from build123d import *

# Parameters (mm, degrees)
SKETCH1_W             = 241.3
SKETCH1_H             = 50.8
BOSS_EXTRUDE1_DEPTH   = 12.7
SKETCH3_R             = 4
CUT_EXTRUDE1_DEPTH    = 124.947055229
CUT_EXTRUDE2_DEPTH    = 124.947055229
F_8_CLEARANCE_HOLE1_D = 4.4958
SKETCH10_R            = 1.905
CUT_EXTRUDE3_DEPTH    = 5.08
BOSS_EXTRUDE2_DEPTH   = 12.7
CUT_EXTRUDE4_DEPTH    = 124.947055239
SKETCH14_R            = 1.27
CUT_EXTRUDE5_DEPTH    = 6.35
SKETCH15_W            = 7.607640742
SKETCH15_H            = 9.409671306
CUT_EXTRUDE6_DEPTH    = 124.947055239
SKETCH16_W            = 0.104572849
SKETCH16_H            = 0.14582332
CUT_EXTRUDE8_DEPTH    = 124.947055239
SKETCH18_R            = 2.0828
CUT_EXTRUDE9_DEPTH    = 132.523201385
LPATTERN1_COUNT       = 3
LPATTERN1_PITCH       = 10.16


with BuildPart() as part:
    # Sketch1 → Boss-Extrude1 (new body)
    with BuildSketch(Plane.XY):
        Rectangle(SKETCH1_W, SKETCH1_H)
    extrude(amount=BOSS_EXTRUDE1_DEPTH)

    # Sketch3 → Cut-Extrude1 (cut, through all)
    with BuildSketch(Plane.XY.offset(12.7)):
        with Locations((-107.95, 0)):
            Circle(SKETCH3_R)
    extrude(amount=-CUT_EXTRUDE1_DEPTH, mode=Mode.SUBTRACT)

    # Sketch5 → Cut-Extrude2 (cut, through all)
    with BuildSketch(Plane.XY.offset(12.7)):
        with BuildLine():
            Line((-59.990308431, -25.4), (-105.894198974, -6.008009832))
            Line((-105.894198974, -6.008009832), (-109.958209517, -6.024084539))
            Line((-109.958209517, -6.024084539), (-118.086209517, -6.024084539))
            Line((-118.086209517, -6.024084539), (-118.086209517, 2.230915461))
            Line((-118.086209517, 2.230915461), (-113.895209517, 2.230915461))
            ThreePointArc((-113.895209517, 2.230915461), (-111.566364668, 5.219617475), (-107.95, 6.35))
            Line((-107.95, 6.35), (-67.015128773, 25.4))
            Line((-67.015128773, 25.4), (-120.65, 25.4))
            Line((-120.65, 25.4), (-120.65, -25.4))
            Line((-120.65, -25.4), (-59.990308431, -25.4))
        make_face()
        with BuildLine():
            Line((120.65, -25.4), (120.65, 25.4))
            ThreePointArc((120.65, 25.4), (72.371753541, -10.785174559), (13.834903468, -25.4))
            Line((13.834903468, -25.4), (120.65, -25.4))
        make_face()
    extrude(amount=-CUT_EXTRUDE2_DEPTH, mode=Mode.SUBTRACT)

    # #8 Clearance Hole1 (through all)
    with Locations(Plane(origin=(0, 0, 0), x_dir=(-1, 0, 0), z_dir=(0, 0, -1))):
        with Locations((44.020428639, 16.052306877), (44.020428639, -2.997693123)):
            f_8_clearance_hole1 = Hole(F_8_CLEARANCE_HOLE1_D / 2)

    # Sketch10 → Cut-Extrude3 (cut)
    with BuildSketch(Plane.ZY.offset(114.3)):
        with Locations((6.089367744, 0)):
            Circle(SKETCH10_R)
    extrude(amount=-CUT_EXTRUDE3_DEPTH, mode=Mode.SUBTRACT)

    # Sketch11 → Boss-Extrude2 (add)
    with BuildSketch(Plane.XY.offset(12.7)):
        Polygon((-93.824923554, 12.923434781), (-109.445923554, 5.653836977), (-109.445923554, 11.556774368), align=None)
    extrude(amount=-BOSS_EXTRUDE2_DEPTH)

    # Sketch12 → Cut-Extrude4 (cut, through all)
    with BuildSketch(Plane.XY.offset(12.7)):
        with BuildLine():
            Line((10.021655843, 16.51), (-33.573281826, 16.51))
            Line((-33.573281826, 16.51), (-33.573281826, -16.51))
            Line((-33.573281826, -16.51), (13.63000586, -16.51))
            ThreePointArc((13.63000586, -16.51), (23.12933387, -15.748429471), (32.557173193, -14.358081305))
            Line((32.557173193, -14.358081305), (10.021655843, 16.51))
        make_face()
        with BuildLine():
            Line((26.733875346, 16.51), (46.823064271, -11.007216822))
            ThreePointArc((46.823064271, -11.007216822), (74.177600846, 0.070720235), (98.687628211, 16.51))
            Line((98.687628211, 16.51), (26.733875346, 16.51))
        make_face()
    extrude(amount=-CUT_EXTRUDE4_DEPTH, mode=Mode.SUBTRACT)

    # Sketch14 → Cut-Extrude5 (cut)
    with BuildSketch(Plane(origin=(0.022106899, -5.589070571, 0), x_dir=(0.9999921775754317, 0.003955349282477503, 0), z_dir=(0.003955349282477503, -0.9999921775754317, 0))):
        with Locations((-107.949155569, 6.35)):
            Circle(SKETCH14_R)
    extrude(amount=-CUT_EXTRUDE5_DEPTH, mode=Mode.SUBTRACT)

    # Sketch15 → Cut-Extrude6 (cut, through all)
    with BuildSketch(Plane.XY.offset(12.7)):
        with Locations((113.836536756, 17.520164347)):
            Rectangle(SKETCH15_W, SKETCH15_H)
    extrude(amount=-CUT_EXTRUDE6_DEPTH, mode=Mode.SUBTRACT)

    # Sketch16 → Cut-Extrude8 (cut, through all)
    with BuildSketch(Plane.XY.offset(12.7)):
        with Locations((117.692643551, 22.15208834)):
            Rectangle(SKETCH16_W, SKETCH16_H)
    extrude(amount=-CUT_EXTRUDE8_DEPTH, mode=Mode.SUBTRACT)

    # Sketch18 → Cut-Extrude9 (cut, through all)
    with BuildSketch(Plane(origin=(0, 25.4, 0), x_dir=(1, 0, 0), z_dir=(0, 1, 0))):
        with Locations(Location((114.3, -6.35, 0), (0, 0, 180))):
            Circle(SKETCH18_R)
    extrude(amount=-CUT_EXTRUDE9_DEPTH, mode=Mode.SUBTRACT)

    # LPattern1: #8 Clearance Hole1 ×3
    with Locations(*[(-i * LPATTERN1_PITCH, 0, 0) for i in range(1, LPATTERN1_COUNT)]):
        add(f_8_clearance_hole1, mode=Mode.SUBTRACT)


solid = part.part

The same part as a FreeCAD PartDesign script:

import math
import FreeCAD as App
import Part
import Sketcher
Q = App.Units.Quantity


def add_polygon(sketch, points):
    """Adds a closed chain of lines whose ends are joined by coincident constraints."""
    first, n = sketch.GeometryCount, len(points)
    for a, b in zip(points, points[1:] + points[:1]):
        sketch.addGeometry(Part.LineSegment(App.Vector(*a, 0), App.Vector(*b, 0)), False)
    for i in range(n):
        sketch.addConstraint(Sketcher.Constraint("Coincident", first + i, 2, first + (i + 1) % n, 1))

doc = App.newDocument("Part")
params = doc.addObject("Spreadsheet::Sheet", "Params")
for row, (alias, value) in enumerate([
    ("sketch1_height", "2 in"),
    ("sketch1_width", "9.5 in"),
    ("pad1_length", "0.5 in"),
    ("sketch3_radius", "6 in"),
    ("sketch3_height", "2 in"),
    ("sketch3_radius2", "0.25 in"),
    ("sketch3_width", "0.32 in"),
    ("sketch3_width2", "0.165 in"),
    ("sketch4_diameter", "0.177 in"),
    ("hole_diameter", "0.177 in"),
    ("sketch5_diameter", "0.15 in"),
    ("pocket3_length", "0.2 in"),
    ("pad2_length", "0.5 in"),
    ("sketch7_radius", "5.65 in"),
    ("sketch7_height", "1.3 in"),
    ("sketch8_diameter", "0.1 in"),
    ("pocket5_length", "0.25 in"),
    ("sketch11_diameter", "0.164 in"),
    ("linearpattern_pitch", "0.4 in"),
], start=1):
    params.set(f"A{row}", alias)
    params.set(f"B{row}", "=" + value)
    params.setAlias(f"B{row}", alias)

body = doc.addObject("PartDesign::Body", "Body")

# Sketch on XY plane
sketch1 = doc.addObject("Sketcher::SketchObject", "Sketch")
body.addObject(sketch1)
sketch1.AttachmentSupport = (doc.XY_Plane, [""])
sketch1.MapMode = "FlatFace"
add_polygon(sketch1, [(-120.65, 25.4), (-120.65, -25.4), (120.65, -25.4), (120.65, 25.4)])  # lines 0-3
sketch1.addConstraint([
    Sketcher.Constraint("Vertical", 0),
    Sketcher.Constraint("Horizontal", 1),
    Sketcher.Constraint("Vertical", 2),
    Sketcher.Constraint("Horizontal", 3),
    Sketcher.Constraint("Symmetric", 0, 2, 2, 2, -1, 1),
    Sketcher.Constraint("DistanceY", 0, 2, 0, 1, Q("2 in")),
    Sketcher.Constraint("DistanceX", 1, 1, 1, 2, Q("9.5 in")),
])
sketch1.setExpression("Constraints[9]", "Params.sketch1_height")
sketch1.setExpression("Constraints[10]", "Params.sketch1_width")
pad1 = doc.addObject("PartDesign::Pad", "Pad")
body.addObject(pad1)
pad1.Profile = sketch1
pad1.setExpression("Length", "Params.pad1_length")

# Sketch on XY plane
sketch2 = doc.addObject("Sketcher::SketchObject", "Sketch001")
body.addObject(sketch2)
sketch2.AttachmentSupport = (doc.XY_Plane, [""])
sketch2.MapMode = "FlatFace"
sketch2.AttachmentOffset = App.Placement(App.Vector(0, 0, 0.5 * 25.4), App.Rotation())
sketch2.addGeometry(Part.Circle(App.Vector(-107.95, 0, 0), App.Vector(0, 0, 1), 4), False)
sketch2.addConstraint([
    Sketcher.Constraint("PointOnObject", 0, 3, -1),
    Sketcher.Constraint("Diameter", 0, Q("8 mm")),
    Sketcher.Constraint("DistanceX", 0, 3, -1, 1, Q("4.25 in")),
])
pocket1 = doc.addObject("PartDesign::Pocket", "Pocket")
body.addObject(pocket1)
pocket1.Profile = sketch2
pocket1.Type = "ThroughAll"

# Sketch on XY plane
sketch3 = doc.addObject("Sketcher::SketchObject", "Sketch002")
body.addObject(sketch3)
sketch3.AttachmentSupport = (doc.XY_Plane, [""])
sketch3.MapMode = "FlatFace"
sketch3.AttachmentOffset = App.Placement(App.Vector(0, 0, 0.5 * 25.4), App.Rotation())
sketch3.addGeometry([
    Part.LineSegment(App.Vector(-59.990308, -25.4, 0), App.Vector(-105.894199, -6.00801, 0)),  # 0
    Part.LineSegment(App.Vector(-105.894199, -6.00801, 0), App.Vector(-109.95821, -6.024085, 0)),  # 1
    Part.LineSegment(App.Vector(-109.95821, -6.024085, 0), App.Vector(-118.08621, -6.024085, 0)),  # 2
    Part.LineSegment(App.Vector(-118.08621, -6.024085, 0), App.Vector(-118.08621, 2.230915, 0)),  # 3
    Part.LineSegment(App.Vector(-118.08621, 2.230915, 0), App.Vector(-113.89521, 2.230915, 0)),  # 4
    Part.ArcOfCircle(Part.Circle(App.Vector(-107.95, 0, 0), App.Vector(0, 0, 1), 6.35), math.radians(90), math.radians(159.431604)),  # 5
    Part.LineSegment(App.Vector(-107.95, 6.35, 0), App.Vector(-67.015129, 25.4, 0)),  # 6
    Part.LineSegment(App.Vector(-67.015129, 25.4, 0), App.Vector(-120.65, 25.4, 0)),  # 7
    Part.LineSegment(App.Vector(-120.65, 25.4, 0), App.Vector(-120.65, -25.4, 0)),  # 8
    Part.LineSegment(App.Vector(-120.65, -25.4, 0), App.Vector(-59.990308, -25.4, 0)),  # 9
    Part.LineSegment(App.Vector(120.65, -25.4, 0), App.Vector(120.65, 25.4, 0)),  # 10
    Part.ArcOfCircle(Part.Circle(App.Vector(6.917452, 126.842927, 0), App.Vector(0, 0, 1), 152.4), math.radians(-87.398445), math.radians(-41.731136)),  # 11
    Part.LineSegment(App.Vector(13.834903, -25.4, 0), App.Vector(120.65, -25.4, 0)),  # 12
], False)
sketch3.addConstraint([
    Sketcher.Constraint("Coincident", 0, 2, 1, 1),
    Sketcher.Constraint("Coincident", 1, 2, 2, 1),
    Sketcher.Constraint("Coincident", 2, 2, 3, 1),
    Sketcher.Constraint("Coincident", 3, 2, 4, 1),
    Sketcher.Constraint("Coincident", 4, 2, 5, 2),
    Sketcher.Constraint("Coincident", 5, 1, 6, 1),
    Sketcher.Constraint("Coincident", 6, 2, 7, 1),
    Sketcher.Constraint("Coincident", 7, 2, 8, 1),
    Sketcher.Constraint("Coincident", 8, 2, 9, 1),
    Sketcher.Constraint("Coincident", 9, 2, 0, 1),
    Sketcher.Constraint("Coincident", 10, 2, 11, 2),
    Sketcher.Constraint("Coincident", 11, 1, 12, 1),
    Sketcher.Constraint("Coincident", 12, 2, 10, 1),
    Sketcher.Constraint("Horizontal", 2),
    Sketcher.Constraint("Vertical", 3),
    Sketcher.Constraint("Horizontal", 4),
    Sketcher.Constraint("Horizontal", 7),
    Sketcher.Constraint("Vertical", 8),
    Sketcher.Constraint("Horizontal", 9),
    Sketcher.Constraint("Vertical", 10),
    Sketcher.Constraint("Horizontal", 12),
    Sketcher.Constraint("Symmetric", 8, 2, 10, 2, -1, 1),
    Sketcher.Constraint("PointOnObject", 5, 3, -1),
    Sketcher.Constraint("Horizontal", 7, 2, 10, 2),
    Sketcher.Constraint("Horizontal", 9, 2, 11, 1),
    Sketcher.Constraint("Radius", 11, Q("6 in")),
    Sketcher.Constraint("DistanceY", 8, 2, 8, 1, Q("2 in")),
    Sketcher.Constraint("Radius", 5, Q("0.25 in")),
    Sketcher.Constraint("DistanceX", 5, 1, 10, 2, Q("9 in")),
    Sketcher.Constraint("DistanceX", 2, 2, 2, 1, Q("0.32 in")),
    Sketcher.Constraint("DistanceX", 7, 2, 5, 1, Q("0.5 in")),
    Sketcher.Constraint("DistanceX", 7, 2, 5, 3, Q("0.5 in")),
    Sketcher.Constraint("DistanceX", 4, 1, 4, 2, Q("0.165 in")),
    Sketcher.Constraint("DistanceY", 3, 1, 3, 2, Q("0.325 in")),
    Sketcher.Constraint("DistanceX", 7, 2, 7, 1, Q("53.634871 mm")),
    Sketcher.Constraint("DistanceX", 9, 1, 9, 2, Q("60.659692 mm")),
    Sketcher.Constraint("DistanceX", 0, 2, -1, 1, Q("105.894199 mm")),
    Sketcher.Constraint("DistanceX", 1, 2, 9, 2, Q("49.967901 mm")),
    Sketcher.Constraint("Distance", 0, Q("49.831882 mm")),
    Sketcher.Constraint("DistanceX", 12, 1, 12, 2, Q("106.815097 mm")),
])
sketch3.setExpression("Constraints[25]", "Params.sketch3_radius")
sketch3.setExpression("Constraints[26]", "Params.sketch3_height")
sketch3.setExpression("Constraints[27]", "Params.sketch3_radius2")
sketch3.setExpression("Constraints[29]", "Params.sketch3_width")
sketch3.setExpression("Constraints[32]", "Params.sketch3_width2")
pocket2 = doc.addObject("PartDesign::Pocket", "Pocket001")
body.addObject(pocket2)
pocket2.Profile = sketch3
pocket2.Type = "ThroughAll"

# Sketch on XY plane
sketch4 = doc.addObject("Sketcher::SketchObject", "Sketch003")
body.addObject(sketch4)
sketch4.AttachmentSupport = (doc.XY_Plane, [""])
sketch4.MapMode = "FlatFace"
sketch4.addGeometry([
    Part.Circle(App.Vector(-44.020429, 16.052307, 0), App.Vector(0, 0, 1), 2.2479),
    Part.Circle(App.Vector(-44.020429, -2.997693, 0), App.Vector(0, 0, 1), 2.2479),
], False)
sketch4.addConstraint([
    Sketcher.Constraint("Equal", 0, 1),
    Sketcher.Constraint("Vertical", 0, 3, 1, 3),
    Sketcher.Constraint("Diameter", 0, Q("0.177 in")),
    Sketcher.Constraint("DistanceY", 1, 3, 0, 3, Q("0.75 in")),
    Sketcher.Constraint("DistanceX", 0, 3, -1, 1, Q("44.020429 mm")),
    Sketcher.Constraint("DistanceY", -1, 1, 0, 3, Q("16.052307 mm")),
])
sketch4.setExpression("Constraints[2]", "Params.sketch4_diameter")
doc.recompute()
hole = doc.addObject("PartDesign::Hole", "Hole")
body.addObject(hole)
hole.Profile = sketch4
hole.ThreadType = "None"
hole.setExpression("Diameter", "Params.hole_diameter")
hole.DepthType = "ThroughAll"
hole.Reversed = True

# Sketch on YZ plane
sketch5 = doc.addObject("Sketcher::SketchObject", "Sketch004")
body.addObject(sketch5)
sketch5.AttachmentSupport = (doc.YZ_Plane, [""])
sketch5.MapMode = "FlatFace"
sketch5.AttachmentOffset = App.Placement(App.Vector(0, 0, -4.5 * 25.4), App.Rotation())
sketch5.addGeometry(Part.Circle(App.Vector(0, 6.089368, 0), App.Vector(0, 0, 1), 1.905), False)
sketch5.addConstraint([
    Sketcher.Constraint("PointOnObject", 0, 3, -2),
    Sketcher.Constraint("Diameter", 0, Q("0.15 in")),
    Sketcher.Constraint("DistanceY", -1, 1, 0, 3, Q("6.089368 mm")),
])
sketch5.setExpression("Constraints[1]", "Params.sketch5_diameter")
pocket3 = doc.addObject("PartDesign::Pocket", "Pocket002")
body.addObject(pocket3)
pocket3.Profile = sketch5
pocket3.setExpression("Length", "Params.pocket3_length")
pocket3.Reversed = True

# Sketch on XY plane
sketch6 = doc.addObject("Sketcher::SketchObject", "Sketch005")
body.addObject(sketch6)
sketch6.AttachmentSupport = (doc.XY_Plane, [""])
sketch6.MapMode = "FlatFace"
sketch6.AttachmentOffset = App.Placement(App.Vector(0, 0, 0.5 * 25.4), App.Rotation())
add_polygon(sketch6, [(-109.445924, 5.653837), (-93.824924, 12.923435), (-109.445924, 11.556774)])  # lines 0-2
sketch6.addConstraint([
    Sketcher.Constraint("Vertical", 2),
    Sketcher.Constraint("Angle", 1, Q("-175 deg")),
    Sketcher.Constraint("DistanceX", 1, 2, 0, 2, Q("0.615 in")),
    Sketcher.Constraint("DistanceY", 2, 2, 2, 1, Q("5.902937 mm")),
    Sketcher.Constraint("DistanceX", 0, 2, -1, 1, Q("93.824924 mm")),
    Sketcher.Constraint("DistanceY", -1, 1, 0, 2, Q("12.923435 mm")),
])
pad2 = doc.addObject("PartDesign::Pad", "Pad001")
body.addObject(pad2)
pad2.Profile = sketch6
pad2.setExpression("Length", "Params.pad2_length")
pad2.Reversed = True

# Sketch on XY plane
sketch7 = doc.addObject("Sketcher::SketchObject", "Sketch006")
body.addObject(sketch7)
sketch7.AttachmentSupport = (doc.XY_Plane, [""])
sketch7.MapMode = "FlatFace"
sketch7.AttachmentOffset = App.Placement(App.Vector(0, 0, 0.5 * 25.4), App.Rotation())
sketch7.addGeometry([
    Part.LineSegment(App.Vector(10.021656, 16.51, 0), App.Vector(-33.573282, 16.51, 0)),  # 0
    Part.LineSegment(App.Vector(-33.573282, 16.51, 0), App.Vector(-33.573282, -16.51, 0)),  # 1
    Part.LineSegment(App.Vector(-33.573282, -16.51, 0), App.Vector(13.630006, -16.51, 0)),  # 2
    Part.ArcOfCircle(Part.Circle(App.Vector(6.917452, 126.842927, 0), App.Vector(0, 0, 1), 143.51), math.radians(-87.319062), math.radians(-79.70819)),  # 3
    Part.LineSegment(App.Vector(32.557173, -14.358081, 0), App.Vector(10.021656, 16.51, 0)),  # 4
    Part.LineSegment(App.Vector(26.733875, 16.51, 0), App.Vector(46.823064, -11.007217, 0)),  # 5
    Part.ArcOfCircle(Part.Circle(App.Vector(6.917452, 126.842927, 0), App.Vector(0, 0, 1), 143.51), math.radians(-73.855039), math.radians(-50.247775)),  # 6
    Part.LineSegment(App.Vector(98.687628, 16.51, 0), App.Vector(26.733875, 16.51, 0)),  # 7
], False)
sketch7.addConstraint([
    Sketcher.Constraint("Coincident", 0, 2, 1, 1),
    Sketcher.Constraint("Coincident", 1, 2, 2, 1),
    Sketcher.Constraint("Coincident", 2, 2, 3, 1),
    Sketcher.Constraint("Coincident", 3, 2, 4, 1),
    Sketcher.Constraint("Coincident", 4, 2, 0, 1),
    Sketcher.Constraint("Coincident", 5, 2, 6, 1),
    Sketcher.Constraint("Coincident", 6, 2, 7, 1),
    Sketcher.Constraint("Coincident", 7, 2, 5, 1),
    Sketcher.Constraint("Horizontal", 0),
    Sketcher.Constraint("Vertical", 1),
    Sketcher.Constraint("Horizontal", 2),
    Sketcher.Constraint("Horizontal", 7),
    Sketcher.Constraint("Coincident", 6, 3, 3, 3),
    Sketcher.Constraint("Equal", 3, 6),
    Sketcher.Constraint("Parallel", 4, 5),
    Sketcher.Constraint("Horizontal", 4, 2, 6, 2),
    Sketcher.Constraint("Radius", 3, Q("5.65 in")),
    Sketcher.Constraint("DistanceY", 1, 2, 1, 1, Q("1.3 in")),
    Sketcher.Constraint("DistanceY", -1, 1, 0, 2, Q("0.65 in")),
    Sketcher.Constraint("DistanceX", 0, 2, 0, 1, Q("43.594938 mm")),
    Sketcher.Constraint("DistanceX", 2, 1, 2, 2, Q("47.203288 mm")),
    Sketcher.Constraint("DistanceX", 7, 2, 7, 1, Q("71.953753 mm")),
    Sketcher.Constraint("DistanceX", -1, 1, 3, 3, Q("6.917452 mm")),
    Sketcher.Constraint("DistanceX", 0, 2, -1, 1, Q("33.573282 mm")),
    Sketcher.Constraint("DistanceY", 3, 2, -1, 1, Q("14.358081 mm")),
])
sketch7.setExpression("Constraints[16]", "Params.sketch7_radius")
sketch7.setExpression("Constraints[17]", "Params.sketch7_height")
pocket4 = doc.addObject("PartDesign::Pocket", "Pocket003")
body.addObject(pocket4)
pocket4.Profile = sketch7
pocket4.Type = "ThroughAll"

# Sketch on an angled plane
sketch8 = doc.addObject("Sketcher::SketchObject", "Sketch007")
body.addObject(sketch8)
sketch8.Placement = App.Placement(App.Vector(0.022107, -5.589071, 0), App.Rotation(App.Vector(0.999992178, 0.003955349, 0), App.Vector(0, 0, 1.000000001), App.Vector(0.003955349, -0.999992178, 0), "ZXY"))
sketch8.addGeometry(Part.Circle(App.Vector(-107.949156, 6.35, 0), App.Vector(0, 0, 1), 1.27), False)
sketch8.addConstraint([
    Sketcher.Constraint("Diameter", 0, Q("0.1 in")),
    Sketcher.Constraint("DistanceY", -1, 1, 0, 3, Q("0.25 in")),
    Sketcher.Constraint("DistanceX", 0, 3, -1, 1, Q("107.949156 mm")),
])
sketch8.setExpression("Constraints[0]", "Params.sketch8_diameter")
pocket5 = doc.addObject("PartDesign::Pocket", "Pocket004")
body.addObject(pocket5)
pocket5.Profile = sketch8
pocket5.setExpression("Length", "Params.pocket5_length")

# Sketch on XY plane
sketch9 = doc.addObject("Sketcher::SketchObject", "Sketch008")
body.addObject(sketch9)
sketch9.AttachmentSupport = (doc.XY_Plane, [""])
sketch9.MapMode = "FlatFace"
sketch9.AttachmentOffset = App.Placement(App.Vector(0, 0, 0.5 * 25.4), App.Rotation())
add_polygon(sketch9, [(110.032716, 22.225), (110.032716, 12.815329), (117.640357, 12.815329), (117.640357, 22.225)])  # lines 0-3
sketch9.addConstraint([
    Sketcher.Constraint("Vertical", 0),
    Sketcher.Constraint("Horizontal", 1),
    Sketcher.Constraint("Vertical", 2),
    Sketcher.Constraint("Horizontal", 3),
    Sketcher.Constraint("DistanceY", -1, 1, 2, 2, Q("0.875 in")),
    Sketcher.Constraint("DistanceX", 1, 1, 1, 2, Q("7.607641 mm")),
    Sketcher.Constraint("DistanceY", 0, 2, 0, 1, Q("9.409671 mm")),
    Sketcher.Constraint("DistanceX", -1, 1, 0, 2, Q("110.032716 mm")),
])
pocket6 = doc.addObject("PartDesign::Pocket", "Pocket005")
body.addObject(pocket6)
pocket6.Profile = sketch9
pocket6.Type = "ThroughAll"

# Sketch on XY plane
sketch10 = doc.addObject("Sketcher::SketchObject", "Sketch009")
body.addObject(sketch10)
sketch10.AttachmentSupport = (doc.XY_Plane, [""])
sketch10.MapMode = "FlatFace"
sketch10.AttachmentOffset = App.Placement(App.Vector(0, 0, 0.5 * 25.4), App.Rotation())
add_polygon(sketch10, [(117.640357, 22.225), (117.640357, 22.079177), (117.74493, 22.079177), (117.74493, 22.225)])  # lines 0-3
sketch10.addConstraint([
    Sketcher.Constraint("Vertical", 0),
    Sketcher.Constraint("Horizontal", 1),
    Sketcher.Constraint("Vertical", 2),
    Sketcher.Constraint("Horizontal", 3),
    Sketcher.Constraint("DistanceY", -1, 1, 2, 2, Q("0.875 in")),
    Sketcher.Constraint("DistanceX", 1, 1, 1, 2, Q("0.104573 mm")),
    Sketcher.Constraint("DistanceY", 0, 2, 0, 1, Q("0.145823 mm")),
    Sketcher.Constraint("DistanceX", -1, 1, 1, 2, Q("117.74493 mm")),
])
pocket7 = doc.addObject("PartDesign::Pocket", "Pocket006")
body.addObject(pocket7)
pocket7.Profile = sketch10
pocket7.Type = "ThroughAll"

# Sketch on XZ plane
sketch11 = doc.addObject("Sketcher::SketchObject", "Sketch010")
body.addObject(sketch11)
sketch11.AttachmentSupport = (doc.XZ_Plane, [""])
sketch11.MapMode = "FlatFace"
sketch11.AttachmentOffset = App.Placement(App.Vector(0, 0, -1 * 25.4), App.Rotation())
sketch11.addGeometry(Part.Circle(App.Vector(114.3, 6.35, 0), App.Vector(0, 0, 1), 2.0828), False)
sketch11.addConstraint([
    Sketcher.Constraint("Diameter", 0, Q("0.164 in")),
    Sketcher.Constraint("DistanceX", -1, 1, 0, 3, Q("4.5 in")),
    Sketcher.Constraint("DistanceY", -1, 1, 0, 3, Q("0.25 in")),
])
sketch11.setExpression("Constraints[0]", "Params.sketch11_diameter")
pocket8 = doc.addObject("PartDesign::Pocket", "Pocket007")
body.addObject(pocket8)
pocket8.Profile = sketch11
pocket8.Type = "ThroughAll"
pocket8.Reversed = True
doc.recompute()

linearpattern = doc.addObject("PartDesign::LinearPattern", "LinearPattern")
body.addObject(linearpattern)
linearpattern.Originals = [hole]
linearpattern.Direction = (doc.X_Axis, [""])
linearpattern.Mode = "offset"
linearpattern.setExpression("Offset", "Params.linearpattern_pitch")
linearpattern.Occurrences = 3
linearpattern.Reversed = True
body.Tip = linearpattern

doc.recompute()
